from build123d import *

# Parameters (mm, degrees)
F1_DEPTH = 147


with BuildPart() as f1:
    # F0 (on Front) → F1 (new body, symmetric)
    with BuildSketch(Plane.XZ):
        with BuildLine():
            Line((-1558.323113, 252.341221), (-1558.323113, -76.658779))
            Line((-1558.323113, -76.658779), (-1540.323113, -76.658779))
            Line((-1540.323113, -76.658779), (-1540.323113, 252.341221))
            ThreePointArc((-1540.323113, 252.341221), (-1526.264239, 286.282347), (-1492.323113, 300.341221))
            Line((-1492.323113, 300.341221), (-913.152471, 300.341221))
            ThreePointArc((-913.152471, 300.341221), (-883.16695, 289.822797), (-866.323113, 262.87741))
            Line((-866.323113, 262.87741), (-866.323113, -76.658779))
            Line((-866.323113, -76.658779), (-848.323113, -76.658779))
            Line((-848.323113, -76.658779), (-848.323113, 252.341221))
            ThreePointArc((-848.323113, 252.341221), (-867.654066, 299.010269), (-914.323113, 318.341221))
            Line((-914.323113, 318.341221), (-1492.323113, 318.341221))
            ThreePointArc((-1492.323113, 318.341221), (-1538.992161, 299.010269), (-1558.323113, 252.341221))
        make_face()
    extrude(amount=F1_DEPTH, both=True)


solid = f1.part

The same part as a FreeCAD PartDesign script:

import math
import FreeCAD as App
import Part
import Sketcher

doc = App.newDocument("Part")
body = doc.addObject("PartDesign::Body", "Body")

sketch1 = body.newObject("Sketcher::SketchObject", "Sketch")
sketch1.AttachmentSupport = (doc.getObject("XZ_Plane"), [""])
sketch1.MapMode = "FlatFace"
sketch1.addGeometry(Part.LineSegment(App.Vector(-1558.323113, 252.341221, 0), App.Vector(-1558.323113, -76.658779, 0)), False)
sketch1.addGeometry(Part.LineSegment(App.Vector(-1558.323113, -76.658779, 0), App.Vector(-1540.323113, -76.658779, 0)), False)
sketch1.addGeometry(Part.LineSegment(App.Vector(-1540.323113, -76.658779, 0), App.Vector(-1540.323113, 252.341221, 0)), False)
sketch1.addGeometry(Part.ArcOfCircle(Part.Circle(App.Vector(-1492.323115, 252.341223, 0), App.Vector(0, 0, 1), 47.999998), math.radians(89.999998), math.radians(180.000002)), False)
sketch1.addGeometry(Part.LineSegment(App.Vector(-1492.323113, 300.341221, 0), App.Vector(-913.152471, 300.341221, 0)), False)
sketch1.addGeometry(Part.ArcOfCircle(Part.Circle(App.Vector(-913.152471, 252.34122, 0), App.Vector(0, 0, 1), 48.000001), math.radians(12.679899), math.radians(90)), False)
sketch1.addGeometry(Part.LineSegment(App.Vector(-866.323113, 262.87741, 0), App.Vector(-866.323113, -76.658779, 0)), False)
sketch1.addGeometry(Part.LineSegment(App.Vector(-866.323113, -76.658779, 0), App.Vector(-848.323113, -76.658779, 0)), False)
sketch1.addGeometry(Part.LineSegment(App.Vector(-848.323113, -76.658779, 0), App.Vector(-848.323113, 252.341221, 0)), False)
sketch1.addGeometry(Part.ArcOfCircle(Part.Circle(App.Vector(-914.323113, 252.341221, 0), App.Vector(0, 0, 1), 66), math.radians(0), math.radians(90)), False)
sketch1.addGeometry(Part.LineSegment(App.Vector(-914.323113, 318.341221, 0), App.Vector(-1492.323113, 318.341221, 0)), False)
sketch1.addGeometry(Part.ArcOfCircle(Part.Circle(App.Vector(-1492.323115, 252.341223, 0), App.Vector(0, 0, 1), 65.999998), math.radians(89.999999), math.radians(180.000001)), False)
sketch1.addConstraint(Sketcher.Constraint("Coincident", 0, 2, 1, 1))
sketch1.addConstraint(Sketcher.Constraint("Coincident", 1, 2, 2, 1))
sketch1.addConstraint(Sketcher.Constraint("Tangent", 2, 2, 3, 2))
sketch1.addConstraint(Sketcher.Constraint("Tangent", 3, 1, 4, 1))
sketch1.addConstraint(Sketcher.Constraint("Tangent", 4, 2, 5, 2))
sketch1.addConstraint(Sketcher.Constraint("Coincident", 5, 1, 6, 1))
sketch1.addConstraint(Sketcher.Constraint("Coincident", 6, 2, 7, 1))
sketch1.addConstraint(Sketcher.Constraint("Coincident", 7, 2, 8, 1))
sketch1.addConstraint(Sketcher.Constraint("Tangent", 8, 2, 9, 1))
sketch1.addConstraint(Sketcher.Constraint("Tangent", 9, 2, 10, 1))
sketch1.addConstraint(Sketcher.Constraint("Tangent", 10, 2, 11, 1))
sketch1.addConstraint(Sketcher.Constraint("Tangent", 11, 2, 0, 1))
sketch1.addConstraint(Sketcher.Constraint("Vertical", 0))
sketch1.addConstraint(Sketcher.Constraint("Horizontal", 1))
sketch1.addConstraint(Sketcher.Constraint("Vertical", 2))
sketch1.addConstraint(Sketcher.Constraint("Horizontal", 4))
sketch1.addConstraint(Sketcher.Constraint("Vertical", 6))
sketch1.addConstraint(Sketcher.Constraint("Horizontal", 7))
sketch1.addConstraint(Sketcher.Constraint("Vertical", 8))
sketch1.addConstraint(Sketcher.Constraint("Horizontal", 10))
sketch1.addConstraint(Sketcher.Constraint("Coincident", 11, 3, 3, 3))
sketch1.addConstraint(Sketcher.Constraint("Equal", 9, 11))
sketch1.addConstraint(Sketcher.Constraint("Horizontal", 5, 3, 9, 3))
sketch1.addConstraint(Sketcher.Constraint("Horizontal", 1, 2, 6, 2))
sketch1.addConstraint(Sketcher.Constraint("Equal", 1, 7))
sketch1.addConstraint(Sketcher.Constraint("Radius", 3, 47.999998))
sketch1.addConstraint(Sketcher.Constraint("Radius", 9, 66.0))
sketch1.addConstraint(Sketcher.Constraint("DistanceX", 10, 2, 10, 1, 578.0))
sketch1.addConstraint(Sketcher.Constraint("DistanceY", 0, 2, 0, 1, 329.0))
sketch1.addConstraint(Sketcher.Constraint("DistanceX", 4, 1, 4, 2, 579.170642))
sketch1.addConstraint(Sketcher.Constraint("DistanceX", 5, 3, -1, 1, 913.152471))
sketch1.addConstraint(Sketcher.Constraint("DistanceY", -1, 1, 5, 3, 252.34122))
pad1 = body.newObject("PartDesign::Pad", "Pad")
pad1.Profile = sketch1
pad1.Length = 294
pad1.Midplane = True

doc.recompute()
